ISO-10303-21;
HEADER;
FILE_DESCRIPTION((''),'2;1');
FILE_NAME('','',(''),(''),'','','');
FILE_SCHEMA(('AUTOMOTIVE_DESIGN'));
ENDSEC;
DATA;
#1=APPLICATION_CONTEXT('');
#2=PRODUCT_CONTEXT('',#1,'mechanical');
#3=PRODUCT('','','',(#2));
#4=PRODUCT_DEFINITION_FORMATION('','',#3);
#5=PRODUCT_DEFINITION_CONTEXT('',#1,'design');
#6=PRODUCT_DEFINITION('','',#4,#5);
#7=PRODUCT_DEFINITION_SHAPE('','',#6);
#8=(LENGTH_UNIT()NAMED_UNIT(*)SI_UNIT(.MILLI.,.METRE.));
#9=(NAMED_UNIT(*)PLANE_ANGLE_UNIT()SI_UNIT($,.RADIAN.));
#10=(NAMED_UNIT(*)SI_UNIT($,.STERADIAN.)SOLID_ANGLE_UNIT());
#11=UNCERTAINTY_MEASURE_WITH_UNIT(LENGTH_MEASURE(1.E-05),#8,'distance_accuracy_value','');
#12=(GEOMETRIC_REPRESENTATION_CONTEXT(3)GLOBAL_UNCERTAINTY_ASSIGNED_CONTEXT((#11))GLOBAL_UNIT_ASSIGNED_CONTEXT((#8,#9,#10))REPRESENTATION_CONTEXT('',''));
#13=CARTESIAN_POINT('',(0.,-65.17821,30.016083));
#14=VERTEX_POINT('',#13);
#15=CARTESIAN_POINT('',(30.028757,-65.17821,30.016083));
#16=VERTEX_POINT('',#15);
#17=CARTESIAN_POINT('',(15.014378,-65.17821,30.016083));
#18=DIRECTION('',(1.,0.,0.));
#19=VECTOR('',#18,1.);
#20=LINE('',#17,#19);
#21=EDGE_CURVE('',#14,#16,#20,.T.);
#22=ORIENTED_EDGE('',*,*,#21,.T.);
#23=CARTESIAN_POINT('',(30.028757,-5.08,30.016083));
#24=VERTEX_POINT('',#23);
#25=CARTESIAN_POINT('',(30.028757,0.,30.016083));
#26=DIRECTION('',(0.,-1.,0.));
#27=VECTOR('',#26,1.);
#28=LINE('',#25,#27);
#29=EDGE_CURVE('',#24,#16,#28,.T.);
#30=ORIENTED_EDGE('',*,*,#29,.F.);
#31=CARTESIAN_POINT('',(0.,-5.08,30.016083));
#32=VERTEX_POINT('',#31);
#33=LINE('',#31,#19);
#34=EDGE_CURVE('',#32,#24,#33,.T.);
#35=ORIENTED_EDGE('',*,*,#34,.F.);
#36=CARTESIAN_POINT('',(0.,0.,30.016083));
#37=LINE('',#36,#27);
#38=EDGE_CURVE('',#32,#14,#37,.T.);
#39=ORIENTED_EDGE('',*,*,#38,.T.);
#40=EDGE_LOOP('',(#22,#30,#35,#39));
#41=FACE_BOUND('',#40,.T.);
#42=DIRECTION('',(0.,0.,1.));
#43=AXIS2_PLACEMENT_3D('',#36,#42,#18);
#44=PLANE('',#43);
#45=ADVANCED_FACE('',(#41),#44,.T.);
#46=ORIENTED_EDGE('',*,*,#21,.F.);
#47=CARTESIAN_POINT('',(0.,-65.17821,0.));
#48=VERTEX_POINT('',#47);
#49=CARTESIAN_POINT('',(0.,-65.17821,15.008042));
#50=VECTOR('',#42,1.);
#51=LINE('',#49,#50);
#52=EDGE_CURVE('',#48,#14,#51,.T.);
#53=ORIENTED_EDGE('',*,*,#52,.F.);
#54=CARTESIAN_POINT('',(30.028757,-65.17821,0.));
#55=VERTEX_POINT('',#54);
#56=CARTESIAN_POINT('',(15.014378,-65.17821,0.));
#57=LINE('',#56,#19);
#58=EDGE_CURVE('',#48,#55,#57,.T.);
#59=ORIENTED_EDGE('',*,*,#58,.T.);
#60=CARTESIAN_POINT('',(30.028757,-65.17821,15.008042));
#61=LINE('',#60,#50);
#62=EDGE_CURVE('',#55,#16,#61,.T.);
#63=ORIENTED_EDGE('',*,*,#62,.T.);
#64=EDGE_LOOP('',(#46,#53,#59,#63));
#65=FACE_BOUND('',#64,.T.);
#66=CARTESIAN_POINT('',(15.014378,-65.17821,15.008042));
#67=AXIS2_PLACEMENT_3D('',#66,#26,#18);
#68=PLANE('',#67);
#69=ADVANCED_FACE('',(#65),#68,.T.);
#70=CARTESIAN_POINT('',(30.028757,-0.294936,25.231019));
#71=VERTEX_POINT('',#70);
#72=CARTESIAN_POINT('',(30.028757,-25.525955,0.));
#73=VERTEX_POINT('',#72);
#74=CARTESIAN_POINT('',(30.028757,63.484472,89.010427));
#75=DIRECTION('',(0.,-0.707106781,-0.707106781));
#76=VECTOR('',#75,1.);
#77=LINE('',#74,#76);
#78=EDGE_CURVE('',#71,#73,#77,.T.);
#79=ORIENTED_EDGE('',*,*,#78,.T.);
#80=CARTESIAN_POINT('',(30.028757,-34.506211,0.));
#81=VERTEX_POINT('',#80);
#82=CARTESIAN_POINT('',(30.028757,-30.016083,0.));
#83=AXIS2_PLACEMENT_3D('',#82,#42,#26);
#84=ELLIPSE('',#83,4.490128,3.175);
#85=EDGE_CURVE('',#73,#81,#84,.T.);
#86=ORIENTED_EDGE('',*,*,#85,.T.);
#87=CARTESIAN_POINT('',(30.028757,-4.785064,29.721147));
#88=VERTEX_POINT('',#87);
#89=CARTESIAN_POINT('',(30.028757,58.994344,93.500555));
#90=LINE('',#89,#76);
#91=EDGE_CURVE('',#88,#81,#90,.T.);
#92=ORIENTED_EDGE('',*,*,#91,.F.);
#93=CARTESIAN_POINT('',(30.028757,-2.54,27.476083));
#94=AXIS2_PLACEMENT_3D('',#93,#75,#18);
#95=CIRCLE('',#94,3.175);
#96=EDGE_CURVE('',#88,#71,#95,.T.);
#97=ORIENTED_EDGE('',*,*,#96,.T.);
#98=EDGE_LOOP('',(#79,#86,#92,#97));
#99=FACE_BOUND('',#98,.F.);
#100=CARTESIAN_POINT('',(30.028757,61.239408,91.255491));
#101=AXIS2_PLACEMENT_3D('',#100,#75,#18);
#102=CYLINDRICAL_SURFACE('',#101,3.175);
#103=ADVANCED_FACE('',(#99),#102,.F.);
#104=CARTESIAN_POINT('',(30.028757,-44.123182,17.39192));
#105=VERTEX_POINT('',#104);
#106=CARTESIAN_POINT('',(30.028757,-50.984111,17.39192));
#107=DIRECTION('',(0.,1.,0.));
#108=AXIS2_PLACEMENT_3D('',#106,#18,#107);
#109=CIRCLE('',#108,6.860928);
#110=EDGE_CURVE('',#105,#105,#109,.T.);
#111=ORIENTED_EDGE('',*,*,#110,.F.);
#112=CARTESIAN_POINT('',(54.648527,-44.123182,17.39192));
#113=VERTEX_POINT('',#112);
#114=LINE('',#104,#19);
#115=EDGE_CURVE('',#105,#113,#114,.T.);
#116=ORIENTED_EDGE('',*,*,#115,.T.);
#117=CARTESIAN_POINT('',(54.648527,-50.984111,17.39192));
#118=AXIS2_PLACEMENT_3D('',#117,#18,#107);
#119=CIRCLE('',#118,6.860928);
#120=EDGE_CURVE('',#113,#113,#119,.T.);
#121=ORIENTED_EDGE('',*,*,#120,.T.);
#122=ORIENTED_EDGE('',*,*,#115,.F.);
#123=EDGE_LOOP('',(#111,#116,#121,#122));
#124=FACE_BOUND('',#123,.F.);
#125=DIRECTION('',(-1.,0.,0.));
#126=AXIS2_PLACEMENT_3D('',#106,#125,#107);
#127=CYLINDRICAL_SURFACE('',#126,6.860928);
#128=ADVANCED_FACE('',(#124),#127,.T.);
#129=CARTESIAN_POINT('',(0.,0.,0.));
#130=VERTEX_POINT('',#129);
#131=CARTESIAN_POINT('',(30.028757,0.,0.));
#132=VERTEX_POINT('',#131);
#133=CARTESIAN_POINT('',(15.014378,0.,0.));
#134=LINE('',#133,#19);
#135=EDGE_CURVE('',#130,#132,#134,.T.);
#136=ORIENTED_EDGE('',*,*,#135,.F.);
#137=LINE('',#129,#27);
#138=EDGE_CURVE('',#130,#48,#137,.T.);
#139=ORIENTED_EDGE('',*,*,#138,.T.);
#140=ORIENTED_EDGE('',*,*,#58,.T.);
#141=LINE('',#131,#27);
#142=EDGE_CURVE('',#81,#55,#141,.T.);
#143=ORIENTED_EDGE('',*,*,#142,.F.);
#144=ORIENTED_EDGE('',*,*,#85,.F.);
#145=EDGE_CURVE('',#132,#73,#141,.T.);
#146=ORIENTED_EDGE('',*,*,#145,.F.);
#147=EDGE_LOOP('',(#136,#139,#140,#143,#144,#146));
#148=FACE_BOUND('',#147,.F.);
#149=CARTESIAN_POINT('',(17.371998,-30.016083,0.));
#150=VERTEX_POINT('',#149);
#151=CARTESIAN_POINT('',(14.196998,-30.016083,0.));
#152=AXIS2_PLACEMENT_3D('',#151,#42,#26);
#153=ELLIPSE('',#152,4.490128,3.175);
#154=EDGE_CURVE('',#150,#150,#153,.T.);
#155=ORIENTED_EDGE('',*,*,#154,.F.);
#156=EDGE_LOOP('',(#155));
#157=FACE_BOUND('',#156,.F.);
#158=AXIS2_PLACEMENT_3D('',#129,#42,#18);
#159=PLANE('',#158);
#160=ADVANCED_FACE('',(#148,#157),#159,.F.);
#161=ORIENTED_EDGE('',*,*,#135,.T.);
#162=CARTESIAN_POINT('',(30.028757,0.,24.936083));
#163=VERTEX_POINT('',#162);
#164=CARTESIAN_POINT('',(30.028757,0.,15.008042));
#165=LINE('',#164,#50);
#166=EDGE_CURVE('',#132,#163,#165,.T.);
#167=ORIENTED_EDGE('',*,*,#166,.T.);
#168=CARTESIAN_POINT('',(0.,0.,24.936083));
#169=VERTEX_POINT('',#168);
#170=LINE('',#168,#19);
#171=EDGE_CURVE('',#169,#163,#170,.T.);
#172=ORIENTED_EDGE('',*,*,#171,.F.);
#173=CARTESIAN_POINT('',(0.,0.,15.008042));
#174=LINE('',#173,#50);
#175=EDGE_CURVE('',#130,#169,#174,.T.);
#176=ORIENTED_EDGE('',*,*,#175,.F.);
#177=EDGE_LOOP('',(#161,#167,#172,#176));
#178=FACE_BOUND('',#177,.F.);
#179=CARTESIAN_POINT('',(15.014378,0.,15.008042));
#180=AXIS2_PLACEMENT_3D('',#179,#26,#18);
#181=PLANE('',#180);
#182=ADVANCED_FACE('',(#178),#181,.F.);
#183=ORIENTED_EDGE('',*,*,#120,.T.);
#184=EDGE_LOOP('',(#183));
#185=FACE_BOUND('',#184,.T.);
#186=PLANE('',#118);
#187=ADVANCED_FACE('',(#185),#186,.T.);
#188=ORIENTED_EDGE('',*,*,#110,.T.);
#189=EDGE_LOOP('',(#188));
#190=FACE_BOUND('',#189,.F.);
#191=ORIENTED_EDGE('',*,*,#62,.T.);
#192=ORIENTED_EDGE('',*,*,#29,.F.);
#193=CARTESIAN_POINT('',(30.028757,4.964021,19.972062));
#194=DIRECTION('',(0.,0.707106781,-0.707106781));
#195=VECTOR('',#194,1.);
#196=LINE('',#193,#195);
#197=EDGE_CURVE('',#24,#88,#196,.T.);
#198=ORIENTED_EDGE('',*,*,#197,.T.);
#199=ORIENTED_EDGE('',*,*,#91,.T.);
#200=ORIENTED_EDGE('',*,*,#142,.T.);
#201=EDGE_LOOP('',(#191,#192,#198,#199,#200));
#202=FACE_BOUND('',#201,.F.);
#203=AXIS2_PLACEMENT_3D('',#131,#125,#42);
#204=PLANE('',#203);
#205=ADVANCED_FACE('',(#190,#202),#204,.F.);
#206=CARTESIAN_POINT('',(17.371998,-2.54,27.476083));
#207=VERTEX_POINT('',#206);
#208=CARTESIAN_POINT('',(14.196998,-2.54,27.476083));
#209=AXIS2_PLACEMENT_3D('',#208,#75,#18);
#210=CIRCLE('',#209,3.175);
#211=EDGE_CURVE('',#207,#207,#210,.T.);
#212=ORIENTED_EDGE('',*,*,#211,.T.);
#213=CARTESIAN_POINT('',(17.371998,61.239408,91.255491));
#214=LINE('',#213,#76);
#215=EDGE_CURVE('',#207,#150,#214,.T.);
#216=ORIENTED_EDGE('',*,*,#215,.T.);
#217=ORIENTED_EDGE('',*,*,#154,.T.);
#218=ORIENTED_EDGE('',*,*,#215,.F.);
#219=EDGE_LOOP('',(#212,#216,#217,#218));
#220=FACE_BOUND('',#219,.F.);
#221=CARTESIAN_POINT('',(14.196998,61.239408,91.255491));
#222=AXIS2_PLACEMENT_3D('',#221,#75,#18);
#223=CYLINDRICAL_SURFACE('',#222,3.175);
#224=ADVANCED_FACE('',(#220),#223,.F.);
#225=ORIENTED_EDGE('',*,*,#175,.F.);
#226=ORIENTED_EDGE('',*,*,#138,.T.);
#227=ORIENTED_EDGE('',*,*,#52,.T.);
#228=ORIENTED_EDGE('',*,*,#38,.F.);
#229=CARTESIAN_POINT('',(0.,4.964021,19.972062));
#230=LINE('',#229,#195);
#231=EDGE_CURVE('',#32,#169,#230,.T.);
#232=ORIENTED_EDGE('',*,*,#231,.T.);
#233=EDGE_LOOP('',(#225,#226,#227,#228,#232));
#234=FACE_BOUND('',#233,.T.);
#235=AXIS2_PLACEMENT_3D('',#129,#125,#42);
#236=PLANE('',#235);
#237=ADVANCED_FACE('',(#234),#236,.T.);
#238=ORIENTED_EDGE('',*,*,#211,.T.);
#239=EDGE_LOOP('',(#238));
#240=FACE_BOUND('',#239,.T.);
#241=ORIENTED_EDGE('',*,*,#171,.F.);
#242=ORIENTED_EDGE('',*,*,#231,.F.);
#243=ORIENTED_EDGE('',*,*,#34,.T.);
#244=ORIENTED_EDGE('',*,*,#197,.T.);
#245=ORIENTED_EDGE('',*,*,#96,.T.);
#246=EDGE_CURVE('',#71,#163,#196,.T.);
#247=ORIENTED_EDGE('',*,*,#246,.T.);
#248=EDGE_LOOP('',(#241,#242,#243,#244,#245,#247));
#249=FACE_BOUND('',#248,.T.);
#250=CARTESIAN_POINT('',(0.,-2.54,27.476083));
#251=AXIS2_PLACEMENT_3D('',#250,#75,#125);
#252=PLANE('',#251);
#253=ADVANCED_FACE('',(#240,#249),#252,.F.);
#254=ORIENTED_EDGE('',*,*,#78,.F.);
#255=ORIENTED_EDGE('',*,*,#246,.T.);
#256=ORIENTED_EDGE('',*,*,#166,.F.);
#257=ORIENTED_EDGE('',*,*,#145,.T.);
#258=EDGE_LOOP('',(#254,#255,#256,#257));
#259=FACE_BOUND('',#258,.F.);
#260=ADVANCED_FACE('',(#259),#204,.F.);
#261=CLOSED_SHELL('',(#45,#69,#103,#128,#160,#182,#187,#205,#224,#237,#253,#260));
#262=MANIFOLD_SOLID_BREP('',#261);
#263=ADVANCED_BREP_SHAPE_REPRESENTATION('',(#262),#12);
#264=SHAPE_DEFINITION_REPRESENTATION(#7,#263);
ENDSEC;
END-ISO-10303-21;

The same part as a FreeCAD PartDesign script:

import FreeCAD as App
import Part
import Sketcher
Q = App.Units.Quantity


def edges_at(feature, points):
    """Names of the edges that pass closest to the given points."""
    edges = feature.Shape.Edges
    near = lambda p: min(range(len(edges)), key=lambda i: edges[i].distToShape(Part.Vertex(*p))[0])
    return sorted({f"Edge{near(p) + 1}" for p in points})

doc = App.newDocument("Part")
body = doc.addObject("PartDesign::Body", "Body")

# Sketch on XZ plane
sketch1 = body.newObject("Sketcher::SketchObject", "Sketch")
sketch1.AttachmentSupport = (doc.getObject("XZ_Plane"), [""])
sketch1.MapMode = "FlatFace"
sketch1.addGeometry([
    Part.LineSegment(App.Vector(0, 30.016083, 0), App.Vector(0, 0, 0)),
    Part.LineSegment(App.Vector(0, 0, 0), App.Vector(30.028757, 0, 0)),
    Part.LineSegment(App.Vector(30.028757, 0, 0), App.Vector(30.028757, 30.016083, 0)),
    Part.LineSegment(App.Vector(30.028757, 30.016083, 0), App.Vector(0, 30.016083, 0)),
], False)
sketch1.addConstraint([
    Sketcher.Constraint("Coincident", 0, 2, 1, 1),
    Sketcher.Constraint("Coincident", 1, 2, 2, 1),
    Sketcher.Constraint("Coincident", 2, 2, 3, 1),
    Sketcher.Constraint("Coincident", 3, 2, 0, 1),
    Sketcher.Constraint("Vertical", 0),
    Sketcher.Constraint("Horizontal", 1),
    Sketcher.Constraint("Vertical", 2),
    Sketcher.Constraint("Horizontal", 3),
    Sketcher.Constraint("Coincident", 0, 2, -1, 1),
    Sketcher.Constraint("DistanceX", 1, 1, 1, 2, Q("30.028757 mm")),
    Sketcher.Constraint("DistanceY", 0, 2, 0, 1, Q("30.016083 mm")),
])
pad1 = body.newObject("PartDesign::Pad", "Pad")
pad1.Profile = sketch1
pad1.Length = 65.17821

# Sketch on YZ plane
sketch2 = body.newObject("Sketcher::SketchObject", "Sketch001")
sketch2.AttachmentSupport = (doc.getObject("YZ_Plane"), [""])
sketch2.MapMode = "FlatFace"
sketch2.AttachmentOffset = App.Placement(App.Vector(0, 0, 30.028757), App.Rotation())
sketch2.addGeometry(Part.Circle(App.Vector(-50.984111, 17.39192, 0), App.Vector(0, 0, 1), 6.860928), False)
sketch2.addConstraint([
    Sketcher.Constraint("Diameter", 0, Q("13.721857 mm")),
    Sketcher.Constraint("DistanceX", 0, 3, -1, 1, Q("50.984111 mm")),
    Sketcher.Constraint("DistanceY", -1, 1, 0, 3, Q("17.39192 mm")),
])
pad2 = body.newObject("PartDesign::Pad", "Pad001")
pad2.Profile = sketch2
pad2.Length = 24.61977
doc.recompute()

chamfer = body.newObject("PartDesign::Chamfer", "Chamfer")
chamfer.Base = (pad2, edges_at(pad2, [(15.014, 0, 30.016)]))
chamfer.Size = Q("0.2 in")

# Sketch on an angled plane
sketch3 = body.newObject("Sketcher::SketchObject", "Sketch002")
sketch3.Placement = App.Placement(App.Vector(0, 12.468042, 12.468042), App.Rotation(App.Vector(-1, 0, 0), App.Vector(0, -0.707106781, 0.707106781), App.Vector(0, 0.707106781, 0.707106781), "ZXY"))
sketch3.addGeometry([
    Part.Circle(App.Vector(-14.196998, 21.224576, 0), App.Vector(0, 0, 1), 3.175),
    Part.Circle(App.Vector(-30.028757, 21.224576, 0), App.Vector(0, 0, 1), 3.175),
], False)
sketch3.addConstraint([
    Sketcher.Constraint("Equal", 0, 1),
    Sketcher.Constraint("Horizontal", 0, 3, 1, 3),
    Sketcher.Constraint("Diameter", 0, Q("0.25 in")),
    Sketcher.Constraint("DistanceX", 0, 3, -1, 1, Q("14.196998 mm")),
    Sketcher.Constraint("DistanceX", 1, 3, 0, 3, Q("15.831758 mm")),
    Sketcher.Constraint("DistanceY", -1, 1, 0, 3, Q("21.224576 mm")),
])
doc.recompute()
hole = body.newObject("PartDesign::Hole", "Hole")
hole.Profile = sketch3
hole.ThreadType = "None"
hole.Diameter = Q("0.25 in")
hole.DepthType = "ThroughAll"

doc.recompute()
